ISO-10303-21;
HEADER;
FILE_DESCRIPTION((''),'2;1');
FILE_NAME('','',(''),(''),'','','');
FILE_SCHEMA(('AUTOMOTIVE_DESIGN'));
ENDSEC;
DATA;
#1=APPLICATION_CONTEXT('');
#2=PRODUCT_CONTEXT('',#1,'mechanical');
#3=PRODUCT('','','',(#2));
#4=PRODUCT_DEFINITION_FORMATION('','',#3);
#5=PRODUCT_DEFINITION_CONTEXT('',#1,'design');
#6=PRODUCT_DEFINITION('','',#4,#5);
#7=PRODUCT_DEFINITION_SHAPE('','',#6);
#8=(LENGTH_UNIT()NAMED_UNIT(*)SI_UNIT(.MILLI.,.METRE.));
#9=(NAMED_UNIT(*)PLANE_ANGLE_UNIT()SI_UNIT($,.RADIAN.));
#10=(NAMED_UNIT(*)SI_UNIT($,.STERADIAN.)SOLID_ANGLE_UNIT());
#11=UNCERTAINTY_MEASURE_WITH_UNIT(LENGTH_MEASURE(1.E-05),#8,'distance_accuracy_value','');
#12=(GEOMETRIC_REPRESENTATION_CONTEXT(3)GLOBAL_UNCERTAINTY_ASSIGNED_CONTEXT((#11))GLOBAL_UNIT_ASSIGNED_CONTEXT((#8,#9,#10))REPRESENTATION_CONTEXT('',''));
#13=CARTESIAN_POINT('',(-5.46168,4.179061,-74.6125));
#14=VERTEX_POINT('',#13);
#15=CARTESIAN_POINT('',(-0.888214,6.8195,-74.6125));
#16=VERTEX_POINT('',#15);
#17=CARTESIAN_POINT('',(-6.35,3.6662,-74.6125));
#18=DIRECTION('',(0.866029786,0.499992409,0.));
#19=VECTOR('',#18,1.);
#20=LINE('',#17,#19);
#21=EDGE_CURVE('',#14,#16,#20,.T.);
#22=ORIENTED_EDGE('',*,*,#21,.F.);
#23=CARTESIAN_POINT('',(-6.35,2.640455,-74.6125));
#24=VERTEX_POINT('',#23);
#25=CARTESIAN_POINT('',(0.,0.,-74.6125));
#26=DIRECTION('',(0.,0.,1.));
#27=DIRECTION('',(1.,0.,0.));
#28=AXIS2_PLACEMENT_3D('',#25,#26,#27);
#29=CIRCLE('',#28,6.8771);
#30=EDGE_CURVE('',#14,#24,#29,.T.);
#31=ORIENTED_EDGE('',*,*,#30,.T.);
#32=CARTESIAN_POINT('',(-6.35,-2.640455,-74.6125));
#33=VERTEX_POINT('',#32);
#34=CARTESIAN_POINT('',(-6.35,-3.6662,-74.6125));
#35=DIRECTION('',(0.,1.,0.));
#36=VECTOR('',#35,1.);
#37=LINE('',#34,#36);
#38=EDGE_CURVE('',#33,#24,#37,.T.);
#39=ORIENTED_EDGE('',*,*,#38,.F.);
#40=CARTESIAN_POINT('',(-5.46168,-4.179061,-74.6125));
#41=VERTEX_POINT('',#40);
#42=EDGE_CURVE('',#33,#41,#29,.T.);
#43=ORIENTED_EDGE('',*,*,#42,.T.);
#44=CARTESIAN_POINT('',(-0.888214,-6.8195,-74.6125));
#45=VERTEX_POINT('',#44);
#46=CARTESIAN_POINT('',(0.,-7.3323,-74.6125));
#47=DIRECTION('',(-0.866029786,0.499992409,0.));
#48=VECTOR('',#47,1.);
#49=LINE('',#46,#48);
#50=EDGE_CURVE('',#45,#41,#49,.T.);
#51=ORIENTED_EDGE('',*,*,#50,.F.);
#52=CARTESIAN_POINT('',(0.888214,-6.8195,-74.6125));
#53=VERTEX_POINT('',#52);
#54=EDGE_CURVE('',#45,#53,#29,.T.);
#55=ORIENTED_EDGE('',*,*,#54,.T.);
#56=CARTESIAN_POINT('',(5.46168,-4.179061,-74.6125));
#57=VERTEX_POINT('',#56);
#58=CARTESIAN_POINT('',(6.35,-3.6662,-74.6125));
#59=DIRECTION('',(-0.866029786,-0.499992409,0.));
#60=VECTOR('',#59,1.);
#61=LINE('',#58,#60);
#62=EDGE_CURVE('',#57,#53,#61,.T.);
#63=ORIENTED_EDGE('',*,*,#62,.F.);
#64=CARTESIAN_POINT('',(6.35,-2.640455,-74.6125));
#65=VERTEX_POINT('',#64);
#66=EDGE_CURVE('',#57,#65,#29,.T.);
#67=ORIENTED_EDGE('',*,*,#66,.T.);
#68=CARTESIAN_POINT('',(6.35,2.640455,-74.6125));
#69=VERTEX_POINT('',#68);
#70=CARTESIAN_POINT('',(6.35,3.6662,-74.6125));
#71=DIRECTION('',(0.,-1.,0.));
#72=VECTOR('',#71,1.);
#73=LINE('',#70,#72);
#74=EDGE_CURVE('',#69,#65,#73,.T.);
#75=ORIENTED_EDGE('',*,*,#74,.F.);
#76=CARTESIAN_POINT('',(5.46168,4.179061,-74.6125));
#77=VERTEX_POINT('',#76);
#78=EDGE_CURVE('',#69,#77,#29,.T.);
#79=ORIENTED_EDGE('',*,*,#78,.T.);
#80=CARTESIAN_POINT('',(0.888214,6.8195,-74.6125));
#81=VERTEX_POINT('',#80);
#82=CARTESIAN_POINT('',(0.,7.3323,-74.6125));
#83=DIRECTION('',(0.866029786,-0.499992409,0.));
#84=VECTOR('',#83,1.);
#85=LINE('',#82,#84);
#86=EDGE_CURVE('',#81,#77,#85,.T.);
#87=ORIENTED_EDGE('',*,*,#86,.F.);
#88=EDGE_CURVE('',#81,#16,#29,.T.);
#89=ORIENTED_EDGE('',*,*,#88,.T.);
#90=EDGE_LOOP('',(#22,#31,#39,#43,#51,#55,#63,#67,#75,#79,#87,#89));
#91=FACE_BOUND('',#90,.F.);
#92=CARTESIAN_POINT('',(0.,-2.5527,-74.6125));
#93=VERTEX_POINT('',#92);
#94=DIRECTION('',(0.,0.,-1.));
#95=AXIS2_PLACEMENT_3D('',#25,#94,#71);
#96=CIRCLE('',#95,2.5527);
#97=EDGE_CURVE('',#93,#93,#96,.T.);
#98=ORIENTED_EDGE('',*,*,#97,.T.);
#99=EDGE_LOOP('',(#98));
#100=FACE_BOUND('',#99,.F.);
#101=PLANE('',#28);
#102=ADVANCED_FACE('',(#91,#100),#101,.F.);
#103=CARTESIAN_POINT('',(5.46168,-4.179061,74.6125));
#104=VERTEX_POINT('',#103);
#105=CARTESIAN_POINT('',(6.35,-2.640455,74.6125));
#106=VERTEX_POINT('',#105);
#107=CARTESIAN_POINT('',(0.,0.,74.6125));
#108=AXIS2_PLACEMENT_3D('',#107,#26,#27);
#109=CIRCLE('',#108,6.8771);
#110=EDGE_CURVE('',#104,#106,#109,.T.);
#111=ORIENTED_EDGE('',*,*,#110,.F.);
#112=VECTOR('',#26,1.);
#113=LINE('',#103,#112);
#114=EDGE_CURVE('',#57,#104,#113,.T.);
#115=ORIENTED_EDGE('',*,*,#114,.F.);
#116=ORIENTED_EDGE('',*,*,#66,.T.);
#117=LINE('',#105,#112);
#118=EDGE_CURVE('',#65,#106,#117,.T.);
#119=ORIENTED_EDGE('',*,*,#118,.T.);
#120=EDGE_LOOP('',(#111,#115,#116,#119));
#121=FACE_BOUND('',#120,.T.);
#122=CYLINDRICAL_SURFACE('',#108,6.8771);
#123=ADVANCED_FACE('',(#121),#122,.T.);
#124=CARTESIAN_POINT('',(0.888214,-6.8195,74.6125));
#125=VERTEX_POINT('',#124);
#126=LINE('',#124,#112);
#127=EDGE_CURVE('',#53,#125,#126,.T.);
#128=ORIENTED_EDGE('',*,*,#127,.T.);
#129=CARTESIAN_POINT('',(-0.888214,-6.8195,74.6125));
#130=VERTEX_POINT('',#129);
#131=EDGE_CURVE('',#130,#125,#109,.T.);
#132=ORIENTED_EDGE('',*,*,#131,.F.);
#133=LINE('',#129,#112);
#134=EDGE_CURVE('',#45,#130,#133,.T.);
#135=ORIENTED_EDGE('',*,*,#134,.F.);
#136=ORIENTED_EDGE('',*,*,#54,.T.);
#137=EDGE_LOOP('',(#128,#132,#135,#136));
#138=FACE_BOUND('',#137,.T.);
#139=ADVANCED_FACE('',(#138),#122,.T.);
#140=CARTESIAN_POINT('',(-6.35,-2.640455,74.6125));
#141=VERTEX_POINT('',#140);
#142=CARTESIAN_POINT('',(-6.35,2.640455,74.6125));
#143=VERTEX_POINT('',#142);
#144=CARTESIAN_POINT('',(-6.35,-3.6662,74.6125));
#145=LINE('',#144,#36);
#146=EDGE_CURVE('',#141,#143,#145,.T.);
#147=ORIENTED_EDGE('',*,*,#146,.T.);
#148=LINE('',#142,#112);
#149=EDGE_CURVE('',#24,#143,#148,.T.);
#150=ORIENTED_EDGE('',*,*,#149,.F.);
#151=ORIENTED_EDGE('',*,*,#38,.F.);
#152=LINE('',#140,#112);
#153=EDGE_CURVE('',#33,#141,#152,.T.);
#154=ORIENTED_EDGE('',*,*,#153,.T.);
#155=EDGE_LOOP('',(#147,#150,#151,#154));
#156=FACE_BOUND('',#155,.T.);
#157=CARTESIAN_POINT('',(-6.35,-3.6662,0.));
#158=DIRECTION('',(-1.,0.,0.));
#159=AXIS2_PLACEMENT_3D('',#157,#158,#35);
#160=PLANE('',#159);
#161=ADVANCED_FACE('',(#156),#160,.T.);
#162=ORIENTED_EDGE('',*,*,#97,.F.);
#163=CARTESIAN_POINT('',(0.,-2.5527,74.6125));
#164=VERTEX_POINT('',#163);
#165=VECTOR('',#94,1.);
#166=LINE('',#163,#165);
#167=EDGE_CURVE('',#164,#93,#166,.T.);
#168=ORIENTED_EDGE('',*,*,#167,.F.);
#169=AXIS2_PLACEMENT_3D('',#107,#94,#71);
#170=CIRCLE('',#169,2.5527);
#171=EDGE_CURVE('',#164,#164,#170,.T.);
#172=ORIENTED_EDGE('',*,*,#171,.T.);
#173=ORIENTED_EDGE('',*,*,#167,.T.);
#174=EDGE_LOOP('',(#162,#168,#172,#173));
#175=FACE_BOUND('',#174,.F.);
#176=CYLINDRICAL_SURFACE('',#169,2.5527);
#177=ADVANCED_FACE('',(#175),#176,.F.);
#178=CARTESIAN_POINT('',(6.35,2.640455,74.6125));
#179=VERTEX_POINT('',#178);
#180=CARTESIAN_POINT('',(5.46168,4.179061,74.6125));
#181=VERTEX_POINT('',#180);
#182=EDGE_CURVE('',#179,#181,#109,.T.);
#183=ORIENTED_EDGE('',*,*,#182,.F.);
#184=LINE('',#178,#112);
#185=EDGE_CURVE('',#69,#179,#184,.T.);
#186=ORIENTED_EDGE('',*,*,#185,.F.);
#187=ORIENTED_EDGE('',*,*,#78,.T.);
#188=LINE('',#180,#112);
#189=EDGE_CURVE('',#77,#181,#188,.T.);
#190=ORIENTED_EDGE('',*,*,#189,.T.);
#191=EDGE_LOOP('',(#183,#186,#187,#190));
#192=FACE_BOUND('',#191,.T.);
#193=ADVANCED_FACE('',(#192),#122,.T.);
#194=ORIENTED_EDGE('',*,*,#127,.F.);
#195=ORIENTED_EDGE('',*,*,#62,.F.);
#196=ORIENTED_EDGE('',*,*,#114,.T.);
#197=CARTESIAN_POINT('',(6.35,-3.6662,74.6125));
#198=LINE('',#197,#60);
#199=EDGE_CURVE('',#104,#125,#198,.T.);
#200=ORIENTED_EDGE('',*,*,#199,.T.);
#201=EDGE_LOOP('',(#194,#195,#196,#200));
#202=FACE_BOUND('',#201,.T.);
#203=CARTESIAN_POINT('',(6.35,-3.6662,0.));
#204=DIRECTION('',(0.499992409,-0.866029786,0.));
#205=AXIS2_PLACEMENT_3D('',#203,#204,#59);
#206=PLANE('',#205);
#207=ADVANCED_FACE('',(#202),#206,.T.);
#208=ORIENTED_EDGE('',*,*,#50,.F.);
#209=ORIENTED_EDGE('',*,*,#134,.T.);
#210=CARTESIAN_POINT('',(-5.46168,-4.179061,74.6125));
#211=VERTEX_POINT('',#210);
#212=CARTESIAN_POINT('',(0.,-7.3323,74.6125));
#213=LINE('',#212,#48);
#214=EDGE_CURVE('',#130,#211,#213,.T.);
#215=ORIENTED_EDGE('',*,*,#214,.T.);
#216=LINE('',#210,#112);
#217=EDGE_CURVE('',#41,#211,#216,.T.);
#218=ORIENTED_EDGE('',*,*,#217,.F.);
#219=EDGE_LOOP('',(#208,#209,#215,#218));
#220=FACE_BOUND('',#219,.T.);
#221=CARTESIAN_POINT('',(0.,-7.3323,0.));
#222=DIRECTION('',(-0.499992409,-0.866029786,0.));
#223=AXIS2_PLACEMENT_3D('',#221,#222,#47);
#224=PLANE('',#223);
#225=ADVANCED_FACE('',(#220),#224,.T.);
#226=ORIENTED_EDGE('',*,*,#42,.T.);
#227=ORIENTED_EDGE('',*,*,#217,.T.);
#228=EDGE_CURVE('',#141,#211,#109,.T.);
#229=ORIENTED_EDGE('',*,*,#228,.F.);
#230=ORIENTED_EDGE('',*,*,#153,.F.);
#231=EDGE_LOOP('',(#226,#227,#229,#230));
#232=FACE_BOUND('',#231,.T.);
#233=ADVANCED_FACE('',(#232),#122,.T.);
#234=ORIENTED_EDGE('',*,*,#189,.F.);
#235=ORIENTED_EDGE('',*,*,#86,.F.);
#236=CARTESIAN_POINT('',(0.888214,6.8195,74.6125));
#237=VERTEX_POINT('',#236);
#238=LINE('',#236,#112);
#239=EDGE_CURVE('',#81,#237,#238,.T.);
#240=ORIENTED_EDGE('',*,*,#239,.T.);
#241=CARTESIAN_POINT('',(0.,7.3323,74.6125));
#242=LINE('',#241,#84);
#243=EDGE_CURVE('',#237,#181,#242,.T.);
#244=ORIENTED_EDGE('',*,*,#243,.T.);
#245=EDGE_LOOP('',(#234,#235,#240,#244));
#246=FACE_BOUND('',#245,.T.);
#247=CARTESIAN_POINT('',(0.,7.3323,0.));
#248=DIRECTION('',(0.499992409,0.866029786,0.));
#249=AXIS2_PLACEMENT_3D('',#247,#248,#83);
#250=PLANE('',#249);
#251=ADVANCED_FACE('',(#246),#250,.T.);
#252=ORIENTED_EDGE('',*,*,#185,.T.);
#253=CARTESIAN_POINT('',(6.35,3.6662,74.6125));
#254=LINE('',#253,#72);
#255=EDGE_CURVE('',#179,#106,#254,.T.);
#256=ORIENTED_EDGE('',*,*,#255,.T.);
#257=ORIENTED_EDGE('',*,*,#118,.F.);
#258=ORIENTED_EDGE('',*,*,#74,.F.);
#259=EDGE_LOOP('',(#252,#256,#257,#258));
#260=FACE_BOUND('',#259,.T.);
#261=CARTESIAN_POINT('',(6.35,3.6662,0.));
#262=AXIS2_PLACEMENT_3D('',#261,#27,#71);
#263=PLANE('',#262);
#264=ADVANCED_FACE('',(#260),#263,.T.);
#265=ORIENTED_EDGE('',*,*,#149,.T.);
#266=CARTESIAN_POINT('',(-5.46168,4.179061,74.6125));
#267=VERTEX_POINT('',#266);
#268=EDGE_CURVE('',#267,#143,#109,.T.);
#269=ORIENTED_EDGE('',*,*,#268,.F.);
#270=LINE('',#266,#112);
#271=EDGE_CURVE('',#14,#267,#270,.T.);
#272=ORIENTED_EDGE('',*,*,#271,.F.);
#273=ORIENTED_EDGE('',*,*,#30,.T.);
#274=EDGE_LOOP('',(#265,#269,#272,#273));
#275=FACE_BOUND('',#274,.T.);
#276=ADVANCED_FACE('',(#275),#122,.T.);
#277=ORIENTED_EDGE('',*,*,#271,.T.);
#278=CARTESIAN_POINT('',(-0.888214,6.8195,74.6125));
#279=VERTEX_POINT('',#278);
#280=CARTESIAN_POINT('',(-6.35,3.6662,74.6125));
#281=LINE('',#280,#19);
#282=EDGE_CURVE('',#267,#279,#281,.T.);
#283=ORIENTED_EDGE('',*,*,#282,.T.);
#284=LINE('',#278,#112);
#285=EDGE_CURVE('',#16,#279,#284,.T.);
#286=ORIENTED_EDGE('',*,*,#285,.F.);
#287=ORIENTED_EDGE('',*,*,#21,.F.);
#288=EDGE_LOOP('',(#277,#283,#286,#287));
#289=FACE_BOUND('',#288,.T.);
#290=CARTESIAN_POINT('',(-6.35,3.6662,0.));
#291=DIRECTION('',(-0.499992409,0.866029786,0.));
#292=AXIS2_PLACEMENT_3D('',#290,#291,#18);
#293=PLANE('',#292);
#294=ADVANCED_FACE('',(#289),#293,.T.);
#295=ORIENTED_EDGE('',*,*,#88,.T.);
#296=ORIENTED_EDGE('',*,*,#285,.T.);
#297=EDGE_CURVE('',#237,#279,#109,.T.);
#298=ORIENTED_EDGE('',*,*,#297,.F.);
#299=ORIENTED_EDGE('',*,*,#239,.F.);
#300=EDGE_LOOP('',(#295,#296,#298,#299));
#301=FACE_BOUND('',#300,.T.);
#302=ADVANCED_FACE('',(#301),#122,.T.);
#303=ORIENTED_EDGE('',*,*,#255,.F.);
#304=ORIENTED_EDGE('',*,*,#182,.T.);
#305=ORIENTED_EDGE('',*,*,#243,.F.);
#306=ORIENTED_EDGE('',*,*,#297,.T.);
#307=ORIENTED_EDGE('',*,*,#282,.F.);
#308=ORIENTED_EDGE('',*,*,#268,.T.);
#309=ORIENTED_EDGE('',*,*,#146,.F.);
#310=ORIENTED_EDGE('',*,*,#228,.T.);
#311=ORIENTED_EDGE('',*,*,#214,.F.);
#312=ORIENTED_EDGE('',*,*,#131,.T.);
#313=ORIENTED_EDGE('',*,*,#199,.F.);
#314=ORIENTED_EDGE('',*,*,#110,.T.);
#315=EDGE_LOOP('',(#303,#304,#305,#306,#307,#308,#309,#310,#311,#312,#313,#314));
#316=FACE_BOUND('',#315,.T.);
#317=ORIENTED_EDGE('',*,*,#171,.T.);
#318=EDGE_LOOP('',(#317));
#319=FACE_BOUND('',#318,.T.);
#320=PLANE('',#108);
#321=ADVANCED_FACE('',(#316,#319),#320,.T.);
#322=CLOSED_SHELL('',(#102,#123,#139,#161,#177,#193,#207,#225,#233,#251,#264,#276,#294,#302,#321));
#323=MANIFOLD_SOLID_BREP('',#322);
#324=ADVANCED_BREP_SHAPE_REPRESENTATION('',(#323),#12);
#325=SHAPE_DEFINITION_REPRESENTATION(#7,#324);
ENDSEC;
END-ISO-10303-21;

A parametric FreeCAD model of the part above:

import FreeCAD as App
import Part
import Sketcher
Q = App.Units.Quantity

doc = App.newDocument("Part")
body = doc.addObject("PartDesign::Body", "Body")

sketch1 = body.newObject("Sketcher::SketchObject", "Sketch")
sketch1.AttachmentSupport = (doc.getObject("XY_Plane"), [""])
sketch1.MapMode = "FlatFace"
sketch1.addGeometry(Part.LineSegment(App.Vector(-6, 4, 0), App.Vector(-6, -4, 0)), False)
sketch1.addGeometry(Part.LineSegment(App.Vector(-6, -4, 0), App.Vector(0, -7, 0)), False)
sketch1.addGeometry(Part.LineSegment(App.Vector(0, -7, 0), App.Vector(6, -4, 0)), False)
sketch1.addGeometry(Part.LineSegment(App.Vector(6, -4, 0), App.Vector(6, 4, 0)), False)
sketch1.addGeometry(Part.LineSegment(App.Vector(6, 4, 0), App.Vector(0, 7, 0)), False)
sketch1.addGeometry(Part.LineSegment(App.Vector(0, 7, 0), App.Vector(-6, 4, 0)), False)
sketch1.addConstraint(Sketcher.Constraint("Coincident", 0, 2, 1, 1))
sketch1.addConstraint(Sketcher.Constraint("Coincident", 1, 2, 2, 1))
sketch1.addConstraint(Sketcher.Constraint("Coincident", 2, 2, 3, 1))
sketch1.addConstraint(Sketcher.Constraint("Coincident", 3, 2, 4, 1))
sketch1.addConstraint(Sketcher.Constraint("Coincident", 4, 2, 5, 1))
sketch1.addConstraint(Sketcher.Constraint("Coincident", 5, 2, 0, 1))
sketch1.addConstraint(Sketcher.Constraint("Vertical", 0))
sketch1.addConstraint(Sketcher.Constraint("Vertical", 3))
sketch1.addConstraint(Sketcher.Constraint("Symmetric", 0, 2, 3, 2, -1, 1))
sketch1.addConstraint(Sketcher.Constraint("Symmetric", 1, 2, 4, 2, -1, 1))
sketch1.addConstraint(Sketcher.Constraint("PointOnObject", 1, 2, -2))
sketch1.addConstraint(Sketcher.Constraint("Parallel", 2, 5))
sketch1.addConstraint(Sketcher.Constraint("Horizontal", 0, 2, 2, 2))
sketch1.addConstraint(Sketcher.Constraint("DistanceX", 0, 2, 2, 2, Q("0.5 in")))
sketch1.addConstraint(Sketcher.Constraint("Angle", 1, Q("-29.9995 deg")))
sketch1.addConstraint(Sketcher.Constraint("DistanceY", 1, 2, 3, 2, Q("0.433 in")))
pad1 = body.newObject("PartDesign::Pad", "Pad")
pad1.Profile = sketch1
pad1.Length = Q("5.875 in")
pad1.Midplane = True

sketch2 = body.newObject("Sketcher::SketchObject", "Sketch001")
sketch2.AttachmentSupport = (doc.getObject("XY_Plane"), [""])
sketch2.MapMode = "FlatFace"
sketch2.AttachmentOffset = App.Placement(App.Vector(0, 0, 2.9375 * 25.4), App.Rotation())
sketch2.addGeometry(Part.Circle(App.Vector(0, 0, 0), App.Vector(0, 0, 1), 2.6), False)
sketch2.addConstraint(Sketcher.Constraint("Coincident", 0, 3, -1, 1))
sketch2.addConstraint(Sketcher.Constraint("Diameter", 0, Q("0.201 in")))
doc.recompute()
hole = body.newObject("PartDesign::Hole", "Hole")
hole.Profile = sketch2
hole.ThreadType = "None"
hole.Diameter = Q("0.201 in")
hole.DepthType = "ThroughAll"

sketch3 = body.newObject("Sketcher::SketchObject", "Sketch002")
sketch3.AttachmentSupport = (doc.getObject("XY_Plane"), [""])
sketch3.MapMode = "FlatFace"
sketch3.AttachmentOffset = App.Placement(App.Vector(0, 0, 2.9375 * 25.4), App.Rotation())
sketch3.addGeometry(Part.Circle(App.Vector(0, 0, 0), App.Vector(0, 0, 1), 9), False)
sketch3.addGeometry(Part.Circle(App.Vector(0, 0, 0), App.Vector(0, 0, 1), 7), False)
sketch3.addConstraint(Sketcher.Constraint("Coincident", 0, 3, -1, 1))
sketch3.addConstraint(Sketcher.Constraint("Coincident", 1, 3, -1, 1))
sketch3.addConstraint(Sketcher.Constraint("Diameter", 0, Q("0.7 in")))
sketch3.addConstraint(Sketcher.Constraint("Diameter", 1, Q("0.5415 in")))
pocket1 = body.newObject("PartDesign::Pocket", "Pocket")
pocket1.Profile = sketch3
pocket1.Type = "ThroughAll"

doc.recompute()
